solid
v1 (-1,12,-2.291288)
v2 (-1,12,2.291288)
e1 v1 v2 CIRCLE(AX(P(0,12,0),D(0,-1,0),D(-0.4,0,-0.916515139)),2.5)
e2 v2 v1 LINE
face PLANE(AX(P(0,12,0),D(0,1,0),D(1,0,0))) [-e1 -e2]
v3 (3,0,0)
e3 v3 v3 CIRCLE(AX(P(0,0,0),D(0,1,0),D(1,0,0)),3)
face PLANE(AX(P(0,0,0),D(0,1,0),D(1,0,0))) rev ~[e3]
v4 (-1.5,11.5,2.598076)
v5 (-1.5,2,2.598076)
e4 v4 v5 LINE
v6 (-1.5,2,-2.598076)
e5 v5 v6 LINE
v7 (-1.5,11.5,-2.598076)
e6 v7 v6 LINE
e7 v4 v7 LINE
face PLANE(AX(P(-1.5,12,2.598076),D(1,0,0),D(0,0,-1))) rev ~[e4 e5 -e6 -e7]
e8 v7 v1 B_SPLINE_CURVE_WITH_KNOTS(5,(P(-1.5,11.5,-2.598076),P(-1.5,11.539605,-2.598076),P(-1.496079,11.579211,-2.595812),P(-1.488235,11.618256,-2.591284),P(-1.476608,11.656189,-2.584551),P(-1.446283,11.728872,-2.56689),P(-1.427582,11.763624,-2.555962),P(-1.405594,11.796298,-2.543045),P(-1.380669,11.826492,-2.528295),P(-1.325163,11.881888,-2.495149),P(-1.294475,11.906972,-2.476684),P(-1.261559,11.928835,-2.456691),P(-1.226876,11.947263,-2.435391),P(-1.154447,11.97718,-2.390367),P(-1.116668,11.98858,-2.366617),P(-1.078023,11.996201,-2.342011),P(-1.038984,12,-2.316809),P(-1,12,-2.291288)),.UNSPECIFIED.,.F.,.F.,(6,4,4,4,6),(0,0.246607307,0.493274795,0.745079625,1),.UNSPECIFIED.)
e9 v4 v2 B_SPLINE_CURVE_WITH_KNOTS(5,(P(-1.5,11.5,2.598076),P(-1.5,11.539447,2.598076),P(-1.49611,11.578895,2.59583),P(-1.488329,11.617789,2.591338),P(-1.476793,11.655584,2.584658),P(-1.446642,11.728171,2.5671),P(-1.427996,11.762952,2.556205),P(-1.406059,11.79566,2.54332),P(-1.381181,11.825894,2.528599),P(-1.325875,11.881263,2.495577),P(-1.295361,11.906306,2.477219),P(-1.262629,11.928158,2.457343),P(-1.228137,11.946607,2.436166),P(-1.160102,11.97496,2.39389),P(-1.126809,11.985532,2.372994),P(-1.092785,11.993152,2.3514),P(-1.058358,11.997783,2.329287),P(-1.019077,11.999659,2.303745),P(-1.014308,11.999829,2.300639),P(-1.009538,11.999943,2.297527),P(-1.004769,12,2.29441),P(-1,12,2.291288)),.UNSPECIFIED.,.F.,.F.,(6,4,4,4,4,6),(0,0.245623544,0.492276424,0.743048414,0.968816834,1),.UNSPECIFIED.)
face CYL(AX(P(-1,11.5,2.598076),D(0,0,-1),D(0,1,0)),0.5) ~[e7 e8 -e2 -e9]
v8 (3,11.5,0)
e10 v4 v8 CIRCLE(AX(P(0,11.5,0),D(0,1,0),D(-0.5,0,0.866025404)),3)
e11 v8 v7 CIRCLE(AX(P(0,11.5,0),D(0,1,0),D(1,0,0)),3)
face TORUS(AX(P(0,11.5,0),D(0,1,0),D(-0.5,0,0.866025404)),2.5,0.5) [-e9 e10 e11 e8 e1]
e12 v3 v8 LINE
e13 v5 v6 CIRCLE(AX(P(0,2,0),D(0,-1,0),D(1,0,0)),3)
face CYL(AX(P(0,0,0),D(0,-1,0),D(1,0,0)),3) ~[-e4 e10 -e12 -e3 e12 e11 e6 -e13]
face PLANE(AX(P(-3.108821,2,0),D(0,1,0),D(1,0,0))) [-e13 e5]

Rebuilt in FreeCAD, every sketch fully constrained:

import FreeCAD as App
import Part
import Sketcher

V = App.Vector
Q = App.Units.Quantity


def edges_at(feature, points):
    """Names of the edges that pass closest to the given points."""
    edges = feature.Shape.Edges
    near = lambda p: min(range(len(edges)), key=lambda i: edges[i].distToShape(Part.Vertex(*p))[0])
    return sorted({f"Edge{near(p) + 1}" for p in points})

doc = App.newDocument("Part")
body = doc.addObject("PartDesign::Body", "Body")

# Sketch on XZ plane
sketch1 = body.newObject("Sketcher::SketchObject", "Sketch")
sketch1.AttachmentSupport = (doc.getObject("XZ_Plane"), [""])
sketch1.MapMode = "FlatFace"
sketch1.addGeometry(Part.Circle(V(0, 0, 0), V(0, 0, 1), 3), False)
sketch1.addConstraint(Sketcher.Constraint("Coincident", 0, 3, -1, 1))
sketch1.addConstraint(Sketcher.Constraint("Diameter", 0, Q("6 mm")))
pad1 = body.newObject("PartDesign::Pad", "Pad")
pad1.Profile = sketch1
pad1.Length = 12
pad1.Reversed = True

# Sketch on XZ plane
sketch2 = body.newObject("Sketcher::SketchObject", "Sketch001")
sketch2.AttachmentSupport = (doc.getObject("XZ_Plane"), [""])
sketch2.MapMode = "FlatFace"
sketch2.AttachmentOffset = App.Placement(V(0, 0, -12), App.Rotation())
sketch2.addGeometry(Part.LineSegment(V(-4.7, -2.6, 0), V(-4.7, 2.6, 0)), False)
sketch2.addGeometry(Part.LineSegment(V(-4.7, 2.6, 0), V(-1.5, 2.6, 0)), False)
sketch2.addGeometry(Part.LineSegment(V(-1.5, 2.6, 0), V(-1.5, -2.6, 0)), False)
sketch2.addGeometry(Part.LineSegment(V(-1.5, -2.6, 0), V(-4.7, -2.6, 0)), False)
sketch2.addConstraint(Sketcher.Constraint("Coincident", 0, 2, 1, 1))
sketch2.addConstraint(Sketcher.Constraint("Coincident", 1, 2, 2, 1))
sketch2.addConstraint(Sketcher.Constraint("Coincident", 2, 2, 3, 1))
sketch2.addConstraint(Sketcher.Constraint("Coincident", 3, 2, 0, 1))
sketch2.addConstraint(Sketcher.Constraint("Vertical", 0))
sketch2.addConstraint(Sketcher.Constraint("Horizontal", 1))
sketch2.addConstraint(Sketcher.Constraint("Vertical", 2))
sketch2.addConstraint(Sketcher.Constraint("Horizontal", 3))
sketch2.addConstraint(Sketcher.Constraint("DistanceX", 1, 2, -1, 1, Q("1.5 mm")))
sketch2.addConstraint(Sketcher.Constraint("DistanceX", 1, 1, 1, 2, Q("3.217642 mm")))
sketch2.addConstraint(Sketcher.Constraint("DistanceY", 0, 1, 0, 2, Q("5.196152 mm")))
sketch2.addConstraint(Sketcher.Constraint("DistanceY", -1, 1, 0, 2, Q("2.598076 mm")))
pocket1 = body.newObject("PartDesign::Pocket", "Pocket")
pocket1.Profile = sketch2
pocket1.Length = 10
pocket1.Reversed = True
doc.recompute()

fillet = body.newObject("PartDesign::Fillet", "Fillet")
fillet.Base = (pocket1, edges_at(pocket1, [(1.5, 12, 2.598), (-1.5, 12, 0)]))
fillet.Radius = 0.5

doc.recompute()
